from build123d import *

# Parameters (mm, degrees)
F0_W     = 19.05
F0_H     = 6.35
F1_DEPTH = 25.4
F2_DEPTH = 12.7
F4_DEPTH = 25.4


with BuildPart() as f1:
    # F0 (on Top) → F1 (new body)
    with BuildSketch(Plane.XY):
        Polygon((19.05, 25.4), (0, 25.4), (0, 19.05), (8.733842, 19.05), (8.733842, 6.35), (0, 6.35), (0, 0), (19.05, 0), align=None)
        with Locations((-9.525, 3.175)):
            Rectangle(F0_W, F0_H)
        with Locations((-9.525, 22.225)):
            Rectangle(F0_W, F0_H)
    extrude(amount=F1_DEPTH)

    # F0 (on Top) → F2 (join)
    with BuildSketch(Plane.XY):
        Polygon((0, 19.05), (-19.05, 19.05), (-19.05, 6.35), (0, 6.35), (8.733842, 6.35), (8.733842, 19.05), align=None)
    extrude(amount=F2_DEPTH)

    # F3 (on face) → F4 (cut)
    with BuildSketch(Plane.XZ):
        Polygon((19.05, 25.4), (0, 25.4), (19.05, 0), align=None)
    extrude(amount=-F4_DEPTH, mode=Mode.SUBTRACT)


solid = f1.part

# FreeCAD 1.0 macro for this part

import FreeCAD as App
import Part
import Sketcher
from FreeCAD import Vector
Q = App.Units.Quantity

doc = App.newDocument("Part")
params = doc.addObject("Spreadsheet::Sheet", "Params")
for row, (alias, value) in enumerate([
    ("sketch1_height", "1 in"),
    ("sketch1_width", "1.5 in"),
    ("sketch1_height2", "0.5 in"),
    ("pad1_length", "1 in"),
    ("sketch2_height", "0.5 in"),
    ("pad2_length", "0.5 in"),
    ("sketch3_height", "1 in"),
    ("sketch3_width", "0.75 in"),
    ("pocket1_length", "1 in"),
], start=1):
    params.set(f"A{row}", alias)
    params.set(f"B{row}", "=" + value)
    params.setAlias(f"B{row}", alias)

body = doc.addObject("PartDesign::Body", "Body")

# Sketch on XY plane
sketch1 = body.newObject("Sketcher::SketchObject", "Sketch")
sketch1.AttachmentSupport = (doc.getObject("XY_Plane"), [""])
sketch1.MapMode = "FlatFace"
sketch1.addGeometry([
    Part.LineSegment(Vector(19.05, 25.4, 0), Vector(-19.05, 25.4, 0)),  # 0
    Part.LineSegment(Vector(-19.05, 25.4, 0), Vector(-19.05, 19.05, 0)),  # 1
    Part.LineSegment(Vector(-19.05, 19.05, 0), Vector(8.733842, 19.05, 0)),  # 2
    Part.LineSegment(Vector(8.733842, 19.05, 0), Vector(8.733842, 6.35, 0)),  # 3
    Part.LineSegment(Vector(8.733842, 6.35, 0), Vector(-19.05, 6.35, 0)),  # 4
    Part.LineSegment(Vector(-19.05, 6.35, 0), Vector(-19.05, 0, 0)),  # 5
    Part.LineSegment(Vector(-19.05, 0, 0), Vector(19.05, 0, 0)),  # 6
    Part.LineSegment(Vector(19.05, 0, 0), Vector(19.05, 25.4, 0)),  # 7
], False)
sketch1.addConstraint([
    Sketcher.Constraint("Coincident", 0, 2, 1, 1),
    Sketcher.Constraint("Coincident", 1, 2, 2, 1),
    Sketcher.Constraint("Coincident", 2, 2, 3, 1),
    Sketcher.Constraint("Coincident", 3, 2, 4, 1),
    Sketcher.Constraint("Coincident", 4, 2, 5, 1),
    Sketcher.Constraint("Coincident", 5, 2, 6, 1),
    Sketcher.Constraint("Coincident", 6, 2, 7, 1),
    Sketcher.Constraint("Coincident", 7, 2, 0, 1),
    Sketcher.Constraint("Horizontal", 0),
    Sketcher.Constraint("Vertical", 1),
    Sketcher.Constraint("Horizontal", 2),
    Sketcher.Constraint("Vertical", 3),
    Sketcher.Constraint("Horizontal", 4),
    Sketcher.Constraint("Vertical", 5),
    Sketcher.Constraint("Horizontal", 6),
    Sketcher.Constraint("Vertical", 7),
    Sketcher.Constraint("Symmetric", 5, 2, 6, 2, -1, 1),
    Sketcher.Constraint("Vertical", 1, 2, 4, 2),
    Sketcher.Constraint("Equal", 1, 5),
    Sketcher.Constraint("DistanceY", 7, 1, 7, 2, Q("1 in")),
    Sketcher.Constraint("DistanceX", 0, 2, 0, 1, Q("1.5 in")),
    Sketcher.Constraint("DistanceY", 3, 2, 3, 1, Q("0.5 in")),
    Sketcher.Constraint("DistanceX", 2, 1, 2, 2, 27.783842),
])
sketch1.setExpression("Constraints[19]", "Params.sketch1_height")
sketch1.setExpression("Constraints[20]", "Params.sketch1_width")
sketch1.setExpression("Constraints[21]", "Params.sketch1_height2")
pad1 = body.newObject("PartDesign::Pad", "Pad")
pad1.Profile = sketch1
pad1.setExpression("Length", "Params.pad1_length")

# Sketch on XY plane
sketch2 = body.newObject("Sketcher::SketchObject", "Sketch001")
sketch2.AttachmentSupport = (doc.getObject("XY_Plane"), [""])
sketch2.MapMode = "FlatFace"
sketch2.addGeometry([
    Part.LineSegment(Vector(-19.05, 19.05, 0), Vector(-19.05, 6.35, 0)),
    Part.LineSegment(Vector(-19.05, 6.35, 0), Vector(8.733842, 6.35, 0)),
    Part.LineSegment(Vector(8.733842, 6.35, 0), Vector(8.733842, 19.05, 0)),
    Part.LineSegment(Vector(8.733842, 19.05, 0), Vector(-19.05, 19.05, 0)),
], False)
sketch2.addConstraint([
    Sketcher.Constraint("Coincident", 0, 2, 1, 1),
    Sketcher.Constraint("Coincident", 1, 2, 2, 1),
    Sketcher.Constraint("Coincident", 2, 2, 3, 1),
    Sketcher.Constraint("Coincident", 3, 2, 0, 1),
    Sketcher.Constraint("Vertical", 0),
    Sketcher.Constraint("Horizontal", 1),
    Sketcher.Constraint("Vertical", 2),
    Sketcher.Constraint("Horizontal", 3),
    Sketcher.Constraint("DistanceY", 0, 2, 0, 1, Q("0.5 in")),
    Sketcher.Constraint("DistanceX", 0, 2, -1, 1, Q("0.75 in")),
    Sketcher.Constraint("DistanceY", -1, 1, 0, 2, Q("0.25 in")),
    Sketcher.Constraint("DistanceX", 1, 1, 1, 2, 27.783842),
])
sketch2.setExpression("Constraints[8]", "Params.sketch2_height")
pad2 = body.newObject("PartDesign::Pad", "Pad001")
pad2.Profile = sketch2
pad2.setExpression("Length", "Params.pad2_length")

# Sketch on XZ plane
sketch3 = body.newObject("Sketcher::SketchObject", "Sketch002")
sketch3.AttachmentSupport = (doc.getObject("XZ_Plane"), [""])
sketch3.MapMode = "FlatFace"
sketch3.addGeometry([
    Part.LineSegment(Vector(19.05, 25.4, 0), Vector(0, 25.4, 0)),
    Part.LineSegment(Vector(0, 25.4, 0), Vector(19.05, 0, 0)),
    Part.LineSegment(Vector(19.05, 0, 0), Vector(19.05, 25.4, 0)),
], False)
sketch3.addConstraint([
    Sketcher.Constraint("Coincident", 0, 2, 1, 1),
    Sketcher.Constraint("Coincident", 1, 2, 2, 1),
    Sketcher.Constraint("Coincident", 2, 2, 0, 1),
    Sketcher.Constraint("Horizontal", 0),
    Sketcher.Constraint("Vertical", 2),
    Sketcher.Constraint("PointOnObject", 0, 2, -2),
    Sketcher.Constraint("PointOnObject", 1, 2, -1),
    Sketcher.Constraint("DistanceY", 2, 1, 2, 2, Q("1 in")),
    Sketcher.Constraint("DistanceX", 0, 2, 0, 1, Q("0.75 in")),
])
sketch3.setExpression("Constraints[7]", "Params.sketch3_height")
sketch3.setExpression("Constraints[8]", "Params.sketch3_width")
pocket1 = body.newObject("PartDesign::Pocket", "Pocket")
pocket1.Profile = sketch3
pocket1.setExpression("Length", "Params.pocket1_length")

doc.recompute()
